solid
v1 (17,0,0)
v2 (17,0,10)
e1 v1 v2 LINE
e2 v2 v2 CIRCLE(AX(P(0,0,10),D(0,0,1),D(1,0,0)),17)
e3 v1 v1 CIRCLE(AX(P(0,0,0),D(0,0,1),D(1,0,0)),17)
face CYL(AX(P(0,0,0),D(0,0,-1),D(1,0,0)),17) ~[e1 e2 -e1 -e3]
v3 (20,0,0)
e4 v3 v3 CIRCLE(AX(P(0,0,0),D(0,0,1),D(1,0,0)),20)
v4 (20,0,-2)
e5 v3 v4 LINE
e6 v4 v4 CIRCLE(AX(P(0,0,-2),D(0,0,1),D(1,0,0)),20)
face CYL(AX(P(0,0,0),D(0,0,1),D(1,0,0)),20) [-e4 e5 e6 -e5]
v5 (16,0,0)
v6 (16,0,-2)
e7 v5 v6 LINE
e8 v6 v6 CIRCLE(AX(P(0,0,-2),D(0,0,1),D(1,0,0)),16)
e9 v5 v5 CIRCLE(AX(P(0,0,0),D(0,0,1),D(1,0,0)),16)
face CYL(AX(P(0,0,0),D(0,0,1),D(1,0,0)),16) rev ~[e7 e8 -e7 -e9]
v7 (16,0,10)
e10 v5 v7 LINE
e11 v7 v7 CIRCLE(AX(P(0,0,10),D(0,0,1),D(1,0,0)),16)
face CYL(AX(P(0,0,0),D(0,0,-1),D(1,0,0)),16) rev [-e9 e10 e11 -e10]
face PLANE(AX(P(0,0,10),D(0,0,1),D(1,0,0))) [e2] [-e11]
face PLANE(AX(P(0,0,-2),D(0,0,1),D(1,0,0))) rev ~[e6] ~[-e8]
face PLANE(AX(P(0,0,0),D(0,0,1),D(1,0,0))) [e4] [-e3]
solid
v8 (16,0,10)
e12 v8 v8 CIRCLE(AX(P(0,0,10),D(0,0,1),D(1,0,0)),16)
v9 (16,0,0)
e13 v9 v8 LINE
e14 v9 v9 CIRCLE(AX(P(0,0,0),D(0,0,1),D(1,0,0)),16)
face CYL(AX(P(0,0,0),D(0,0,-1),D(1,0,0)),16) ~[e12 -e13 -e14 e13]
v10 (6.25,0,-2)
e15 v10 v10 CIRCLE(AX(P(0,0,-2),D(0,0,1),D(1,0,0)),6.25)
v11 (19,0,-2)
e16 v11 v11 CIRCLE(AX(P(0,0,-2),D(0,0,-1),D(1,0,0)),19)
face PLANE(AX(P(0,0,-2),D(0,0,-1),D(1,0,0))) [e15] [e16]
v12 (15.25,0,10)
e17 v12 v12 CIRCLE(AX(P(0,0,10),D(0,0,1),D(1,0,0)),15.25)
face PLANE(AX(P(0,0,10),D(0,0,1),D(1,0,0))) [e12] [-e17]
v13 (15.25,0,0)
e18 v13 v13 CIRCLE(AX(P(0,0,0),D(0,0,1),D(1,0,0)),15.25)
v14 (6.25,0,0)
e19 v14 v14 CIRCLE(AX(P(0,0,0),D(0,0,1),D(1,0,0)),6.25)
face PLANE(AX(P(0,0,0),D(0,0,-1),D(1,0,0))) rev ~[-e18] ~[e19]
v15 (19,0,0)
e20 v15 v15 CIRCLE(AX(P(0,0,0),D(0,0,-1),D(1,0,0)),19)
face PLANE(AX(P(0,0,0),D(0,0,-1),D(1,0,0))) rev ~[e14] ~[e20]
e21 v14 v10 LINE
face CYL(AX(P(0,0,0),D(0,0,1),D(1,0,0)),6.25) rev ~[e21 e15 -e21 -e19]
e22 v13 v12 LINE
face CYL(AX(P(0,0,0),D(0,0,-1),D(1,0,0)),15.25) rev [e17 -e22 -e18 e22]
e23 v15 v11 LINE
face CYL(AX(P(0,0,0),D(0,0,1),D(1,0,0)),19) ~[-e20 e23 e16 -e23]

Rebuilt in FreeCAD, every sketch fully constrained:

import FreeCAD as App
import Part
import Sketcher
from FreeCAD import Vector
Q = App.Units.Quantity

doc = App.newDocument("Part")
body = doc.addObject("PartDesign::Body", "Body")

# Sketch on XY plane
sketch1 = body.newObject("Sketcher::SketchObject", "Sketch")
sketch1.AttachmentSupport = (doc.getObject("XY_Plane"), [""])
sketch1.MapMode = "FlatFace"
sketch1.addGeometry([
    Part.Circle(Vector(0, 0, 0), Vector(0, 0, 1), 16),
    Part.Circle(Vector(0, 0, 0), Vector(0, 0, 1), 15),
], False)
sketch1.addConstraint([
    Sketcher.Constraint("Coincident", 0, 3, -1, 1),
    Sketcher.Constraint("Coincident", 1, 3, -1, 1),
    Sketcher.Constraint("Diameter", 0, Q("32 mm")),
    Sketcher.Constraint("Diameter", 1, Q("30.5 mm")),
])
pad1 = body.newObject("PartDesign::Pad", "Pad")
pad1.Profile = sketch1
pad1.Length = 10

# Sketch on XY plane
sketch2 = body.newObject("Sketcher::SketchObject", "Sketch001")
sketch2.AttachmentSupport = (doc.getObject("XY_Plane"), [""])
sketch2.MapMode = "FlatFace"
sketch2.addGeometry(Part.Circle(Vector(0, 0, 0), Vector(0, 0, 1), 19), False)
sketch2.addConstraint([
    Sketcher.Constraint("Coincident", 0, 3, -1, 1),
    Sketcher.Constraint("Diameter", 0, Q("38 mm")),
])
pad2 = body.newObject("PartDesign::Pad", "Pad001")
pad2.Profile = sketch2
pad2.Length = 2
pad2.Reversed = True

# Sketch on XY plane
sketch3 = body.newObject("Sketcher::SketchObject", "Sketch002")
sketch3.AttachmentSupport = (doc.getObject("XY_Plane"), [""])
sketch3.MapMode = "FlatFace"
sketch3.addGeometry(Part.Circle(Vector(0, 0, 0), Vector(0, 0, 1), 6), False)
sketch3.addConstraint([
    Sketcher.Constraint("Coincident", 0, 3, -1, 1),
    Sketcher.Constraint("Diameter", 0, Q("12.5 mm")),
])
pocket1 = body.newObject("PartDesign::Pocket", "Pocket")
pocket1.Profile = sketch3
pocket1.Type = "ThroughAll"
pocket1.Midplane = True
body2 = doc.addObject("PartDesign::Body", "Body001")

# Sketch on XY plane
sketch4 = body2.newObject("Sketcher::SketchObject", "Sketch003")
sketch4.AttachmentSupport = (doc.getObject("XY_Plane001"), [""])
sketch4.MapMode = "FlatFace"
sketch4.addGeometry([
    Part.Circle(Vector(0, 0, 0), Vector(0, 0, 1), 17),
    Part.Circle(Vector(0, 0, 0), Vector(0, 0, 1), 16),
], False)
sketch4.addConstraint([
    Sketcher.Constraint("Coincident", 0, 3, -1, 1),
    Sketcher.Constraint("Coincident", 1, 3, -1, 1),
    Sketcher.Constraint("Diameter", 0, Q("34 mm")),
    Sketcher.Constraint("Diameter", 1, Q("32 mm")),
])
pad3 = body2.newObject("PartDesign::Pad", "Pad002")
pad3.Profile = sketch4
pad3.Length = 10

# Sketch on XY plane
sketch5 = body2.newObject("Sketcher::SketchObject", "Sketch004")
sketch5.AttachmentSupport = (doc.getObject("XY_Plane001"), [""])
sketch5.MapMode = "FlatFace"
sketch5.addGeometry([
    Part.Circle(Vector(0, 0, 0), Vector(0, 0, 1), 20),
    Part.Circle(Vector(0, 0, 0), Vector(0, 0, 1), 16),
], False)
sketch5.addConstraint([
    Sketcher.Constraint("Coincident", 0, 3, -1, 1),
    Sketcher.Constraint("Coincident", 1, 3, -1, 1),
    Sketcher.Constraint("Diameter", 0, Q("40 mm")),
    Sketcher.Constraint("Diameter", 1, Q("32 mm")),
])
pad4 = body2.newObject("PartDesign::Pad", "Pad003")
pad4.Profile = sketch5
pad4.Length = 2
pad4.Reversed = True

doc.recompute()
